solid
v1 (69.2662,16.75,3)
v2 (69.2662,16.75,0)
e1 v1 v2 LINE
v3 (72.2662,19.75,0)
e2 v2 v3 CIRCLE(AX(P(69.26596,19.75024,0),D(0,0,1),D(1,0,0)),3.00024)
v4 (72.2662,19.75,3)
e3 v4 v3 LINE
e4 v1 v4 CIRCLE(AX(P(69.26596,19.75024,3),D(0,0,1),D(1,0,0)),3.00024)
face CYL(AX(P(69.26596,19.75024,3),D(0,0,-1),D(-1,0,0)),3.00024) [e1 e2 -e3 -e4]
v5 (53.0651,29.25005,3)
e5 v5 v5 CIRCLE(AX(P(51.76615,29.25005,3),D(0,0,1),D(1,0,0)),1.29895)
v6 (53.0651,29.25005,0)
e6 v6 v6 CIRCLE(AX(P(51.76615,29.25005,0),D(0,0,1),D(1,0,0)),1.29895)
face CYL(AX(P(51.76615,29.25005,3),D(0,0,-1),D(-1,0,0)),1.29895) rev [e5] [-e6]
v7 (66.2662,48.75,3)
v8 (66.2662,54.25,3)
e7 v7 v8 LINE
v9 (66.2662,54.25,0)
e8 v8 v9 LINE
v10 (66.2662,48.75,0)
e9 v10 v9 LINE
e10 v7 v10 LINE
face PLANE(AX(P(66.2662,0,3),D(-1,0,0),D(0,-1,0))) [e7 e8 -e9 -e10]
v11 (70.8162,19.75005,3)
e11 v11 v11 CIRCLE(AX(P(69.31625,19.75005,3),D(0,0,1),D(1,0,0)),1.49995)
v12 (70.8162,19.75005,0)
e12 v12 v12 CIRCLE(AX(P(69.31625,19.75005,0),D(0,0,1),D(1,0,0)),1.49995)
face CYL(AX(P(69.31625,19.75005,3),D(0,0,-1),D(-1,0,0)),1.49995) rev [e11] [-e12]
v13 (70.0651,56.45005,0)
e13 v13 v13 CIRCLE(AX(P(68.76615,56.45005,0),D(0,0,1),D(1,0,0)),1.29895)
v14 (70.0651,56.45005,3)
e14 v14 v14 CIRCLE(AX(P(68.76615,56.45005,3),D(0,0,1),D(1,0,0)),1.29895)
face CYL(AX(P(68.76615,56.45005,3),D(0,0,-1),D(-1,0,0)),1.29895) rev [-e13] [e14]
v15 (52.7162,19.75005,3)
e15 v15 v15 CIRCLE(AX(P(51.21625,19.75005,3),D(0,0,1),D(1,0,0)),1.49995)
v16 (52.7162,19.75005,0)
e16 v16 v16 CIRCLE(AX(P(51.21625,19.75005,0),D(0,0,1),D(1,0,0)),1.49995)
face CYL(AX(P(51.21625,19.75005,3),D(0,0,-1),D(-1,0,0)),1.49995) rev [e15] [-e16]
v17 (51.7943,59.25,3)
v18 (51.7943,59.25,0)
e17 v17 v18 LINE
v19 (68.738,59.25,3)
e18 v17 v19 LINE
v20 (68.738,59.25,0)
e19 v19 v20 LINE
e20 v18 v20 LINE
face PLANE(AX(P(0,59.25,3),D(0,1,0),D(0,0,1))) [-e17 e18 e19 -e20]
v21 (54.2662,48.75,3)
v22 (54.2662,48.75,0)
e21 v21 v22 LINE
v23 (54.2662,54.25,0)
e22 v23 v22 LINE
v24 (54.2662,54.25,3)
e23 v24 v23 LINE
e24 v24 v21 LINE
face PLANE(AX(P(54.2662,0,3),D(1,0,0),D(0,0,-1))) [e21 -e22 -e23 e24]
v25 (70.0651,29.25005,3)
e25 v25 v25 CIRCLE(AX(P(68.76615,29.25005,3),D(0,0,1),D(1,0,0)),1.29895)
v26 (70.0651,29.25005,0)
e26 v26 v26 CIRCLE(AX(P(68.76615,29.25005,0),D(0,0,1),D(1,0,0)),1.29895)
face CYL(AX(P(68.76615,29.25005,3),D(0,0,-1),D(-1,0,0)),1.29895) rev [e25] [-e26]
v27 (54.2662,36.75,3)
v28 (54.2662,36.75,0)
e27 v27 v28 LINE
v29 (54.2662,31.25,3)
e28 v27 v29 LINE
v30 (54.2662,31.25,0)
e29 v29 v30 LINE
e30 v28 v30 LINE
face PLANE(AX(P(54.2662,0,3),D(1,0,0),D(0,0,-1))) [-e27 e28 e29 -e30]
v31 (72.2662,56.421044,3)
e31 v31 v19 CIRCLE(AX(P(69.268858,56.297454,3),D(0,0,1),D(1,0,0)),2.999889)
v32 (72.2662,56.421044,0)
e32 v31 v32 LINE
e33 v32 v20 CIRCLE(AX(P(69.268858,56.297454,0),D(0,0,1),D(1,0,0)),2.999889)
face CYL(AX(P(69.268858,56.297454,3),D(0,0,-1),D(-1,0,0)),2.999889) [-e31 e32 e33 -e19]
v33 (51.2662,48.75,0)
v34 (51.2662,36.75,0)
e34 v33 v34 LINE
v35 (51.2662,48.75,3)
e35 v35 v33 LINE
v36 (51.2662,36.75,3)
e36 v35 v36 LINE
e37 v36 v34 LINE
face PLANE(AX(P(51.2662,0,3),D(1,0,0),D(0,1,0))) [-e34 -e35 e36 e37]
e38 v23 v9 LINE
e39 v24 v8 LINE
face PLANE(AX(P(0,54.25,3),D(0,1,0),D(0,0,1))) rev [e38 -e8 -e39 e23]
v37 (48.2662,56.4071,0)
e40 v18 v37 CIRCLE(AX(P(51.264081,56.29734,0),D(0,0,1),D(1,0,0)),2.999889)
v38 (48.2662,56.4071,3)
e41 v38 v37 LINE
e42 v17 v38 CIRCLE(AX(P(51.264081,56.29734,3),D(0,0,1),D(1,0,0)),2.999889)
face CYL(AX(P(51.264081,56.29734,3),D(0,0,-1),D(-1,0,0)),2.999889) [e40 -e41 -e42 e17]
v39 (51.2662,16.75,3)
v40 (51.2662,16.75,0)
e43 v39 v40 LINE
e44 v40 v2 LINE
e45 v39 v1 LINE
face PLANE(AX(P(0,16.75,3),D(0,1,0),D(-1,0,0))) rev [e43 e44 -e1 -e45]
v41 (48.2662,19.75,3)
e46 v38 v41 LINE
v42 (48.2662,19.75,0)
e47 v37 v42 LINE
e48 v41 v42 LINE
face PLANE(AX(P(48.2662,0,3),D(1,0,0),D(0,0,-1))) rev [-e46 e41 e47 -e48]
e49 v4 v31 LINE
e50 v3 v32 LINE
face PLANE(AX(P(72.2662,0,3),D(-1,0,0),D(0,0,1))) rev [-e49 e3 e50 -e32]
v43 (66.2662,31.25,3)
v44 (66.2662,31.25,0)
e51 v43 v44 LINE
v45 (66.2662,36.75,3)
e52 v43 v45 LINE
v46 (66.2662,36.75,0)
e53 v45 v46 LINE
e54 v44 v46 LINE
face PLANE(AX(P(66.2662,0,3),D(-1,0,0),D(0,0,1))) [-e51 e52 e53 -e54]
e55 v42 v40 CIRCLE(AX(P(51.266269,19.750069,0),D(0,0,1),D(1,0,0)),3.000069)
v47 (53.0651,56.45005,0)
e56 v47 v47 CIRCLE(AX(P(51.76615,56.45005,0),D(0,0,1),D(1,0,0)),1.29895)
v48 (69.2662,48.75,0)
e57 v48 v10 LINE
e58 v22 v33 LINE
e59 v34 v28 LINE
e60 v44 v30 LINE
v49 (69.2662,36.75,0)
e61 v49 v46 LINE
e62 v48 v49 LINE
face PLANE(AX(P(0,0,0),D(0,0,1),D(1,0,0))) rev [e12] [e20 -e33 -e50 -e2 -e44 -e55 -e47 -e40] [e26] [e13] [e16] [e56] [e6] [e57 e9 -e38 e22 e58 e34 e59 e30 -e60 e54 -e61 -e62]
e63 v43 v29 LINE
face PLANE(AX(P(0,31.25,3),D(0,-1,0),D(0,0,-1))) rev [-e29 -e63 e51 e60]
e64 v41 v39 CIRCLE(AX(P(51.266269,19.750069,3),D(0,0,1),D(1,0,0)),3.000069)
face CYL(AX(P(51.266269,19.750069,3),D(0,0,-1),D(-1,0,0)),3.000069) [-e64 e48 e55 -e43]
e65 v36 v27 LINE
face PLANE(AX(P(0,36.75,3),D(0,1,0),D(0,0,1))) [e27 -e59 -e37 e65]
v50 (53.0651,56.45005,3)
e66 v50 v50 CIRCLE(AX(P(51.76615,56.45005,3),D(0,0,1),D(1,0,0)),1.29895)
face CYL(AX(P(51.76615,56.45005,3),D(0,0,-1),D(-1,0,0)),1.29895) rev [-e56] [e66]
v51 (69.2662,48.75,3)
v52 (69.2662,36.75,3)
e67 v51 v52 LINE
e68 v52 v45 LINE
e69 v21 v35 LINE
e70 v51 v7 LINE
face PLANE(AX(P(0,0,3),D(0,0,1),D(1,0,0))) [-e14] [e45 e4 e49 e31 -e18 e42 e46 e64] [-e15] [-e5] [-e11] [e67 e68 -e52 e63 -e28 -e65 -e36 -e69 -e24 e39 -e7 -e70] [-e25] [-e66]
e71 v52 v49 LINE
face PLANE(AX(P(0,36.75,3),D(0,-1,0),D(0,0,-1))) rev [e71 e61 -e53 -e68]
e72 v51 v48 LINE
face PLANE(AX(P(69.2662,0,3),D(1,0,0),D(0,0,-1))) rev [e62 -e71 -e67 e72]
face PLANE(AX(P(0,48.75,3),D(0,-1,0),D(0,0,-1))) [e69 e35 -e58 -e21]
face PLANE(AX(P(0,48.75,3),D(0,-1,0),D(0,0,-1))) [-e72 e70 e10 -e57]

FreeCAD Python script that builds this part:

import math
import FreeCAD as App
import Part
import Sketcher

V = App.Vector
Q = App.Units.Quantity

doc = App.newDocument("Part")
body = doc.addObject("PartDesign::Body", "Body")

# Sketch on XY plane
sketch1 = body.newObject("Sketcher::SketchObject", "Sketch")
sketch1.AttachmentSupport = (doc.getObject("XY_Plane"), [""])
sketch1.MapMode = "FlatFace"
sketch1.addGeometry([
    Part.ArcOfCircle(Part.Circle(V(69.268858, 56.297454, 0), V(0, 0, 1), 2.999889), math.radians(2.361139), math.radians(100.192684)),  # 0
    Part.LineSegment(V(68.738, 59.25, 0), V(51.7943, 59.25, 0)),  # 1
    Part.ArcOfCircle(Part.Circle(V(51.264081, 56.29734, 0), V(0, 0, 1), 2.999889), math.radians(79.819702), math.radians(177.903186)),  # 2
    Part.LineSegment(V(48.2662, 56.4071, 0), V(48.2662, 19.75, 0)),  # 3
    Part.ArcOfCircle(Part.Circle(V(51.266269, 19.750069, 0), V(0, 0, 1), 3.000069), math.radians(-179.998674), math.radians(-90.001326)),  # 4
    Part.LineSegment(V(51.2662, 16.75, 0), V(69.2662, 16.75, 0)),  # 5
    Part.ArcOfCircle(Part.Circle(V(69.26596, 19.75024, 0), V(0, 0, 1), 3.00024), math.radians(-89.995413), math.radians(-0.004587)),  # 6
    Part.LineSegment(V(72.2662, 19.75, 0), V(72.2662, 56.421044, 0)),  # 7
    Part.Circle(V(51.21625, 19.75005, 0), V(0, 0, 1), 1.49995),  # 8
    Part.Circle(V(51.76615, 29.25005, 0), V(0, 0, 1), 1.29895),  # 9
    Part.Circle(V(69.31625, 19.75005, 0), V(0, 0, 1), 1.49995),  # 10
    Part.Circle(V(68.76615, 29.25005, 0), V(0, 0, 1), 1.29895),  # 11
    Part.LineSegment(V(66.2662, 48.75, 0), V(69.2662, 48.75, 0)),  # 12
    Part.LineSegment(V(69.2662, 48.75, 0), V(69.2662, 36.75, 0)),  # 13
    Part.LineSegment(V(69.2662, 36.75, 0), V(66.2662, 36.75, 0)),  # 14
    Part.LineSegment(V(66.2662, 36.75, 0), V(66.2662, 31.25, 0)),  # 15
    Part.LineSegment(V(66.2662, 31.25, 0), V(54.2662, 31.25, 0)),  # 16
    Part.LineSegment(V(54.2662, 31.25, 0), V(54.2662, 36.75, 0)),  # 17
    Part.LineSegment(V(54.2662, 36.75, 0), V(51.2662, 36.75, 0)),  # 18
    Part.LineSegment(V(51.2662, 36.75, 0), V(51.2662, 48.75, 0)),  # 19
    Part.LineSegment(V(51.2662, 48.75, 0), V(54.2662, 48.75, 0)),  # 20
    Part.LineSegment(V(54.2662, 48.75, 0), V(54.2662, 54.25, 0)),  # 21
    Part.LineSegment(V(54.2662, 54.25, 0), V(66.2662, 54.25, 0)),  # 22
    Part.LineSegment(V(66.2662, 54.25, 0), V(66.2662, 48.75, 0)),  # 23
    Part.Circle(V(51.76615, 56.45005, 0), V(0, 0, 1), 1.29895),  # 24
    Part.Circle(V(68.76615, 56.45005, 0), V(0, 0, 1), 1.29895),  # 25
], False)
sketch1.addConstraint([
    Sketcher.Constraint("Coincident", 0, 2, 1, 1),
    Sketcher.Constraint("Coincident", 1, 2, 2, 1),
    Sketcher.Constraint("Coincident", 2, 2, 3, 1),
    Sketcher.Constraint("Coincident", 3, 2, 4, 1),
    Sketcher.Constraint("Coincident", 4, 2, 5, 1),
    Sketcher.Constraint("Coincident", 5, 2, 6, 1),
    Sketcher.Constraint("Coincident", 6, 2, 7, 1),
    Sketcher.Constraint("Coincident", 7, 2, 0, 1),
    Sketcher.Constraint("Coincident", 12, 2, 13, 1),
    Sketcher.Constraint("Coincident", 13, 2, 14, 1),
    Sketcher.Constraint("Coincident", 14, 2, 15, 1),
    Sketcher.Constraint("Coincident", 15, 2, 16, 1),
    Sketcher.Constraint("Coincident", 16, 2, 17, 1),
    Sketcher.Constraint("Coincident", 17, 2, 18, 1),
    Sketcher.Constraint("Coincident", 18, 2, 19, 1),
    Sketcher.Constraint("Coincident", 19, 2, 20, 1),
    Sketcher.Constraint("Coincident", 20, 2, 21, 1),
    Sketcher.Constraint("Coincident", 21, 2, 22, 1),
    Sketcher.Constraint("Coincident", 22, 2, 23, 1),
    Sketcher.Constraint("Coincident", 23, 2, 12, 1),
    Sketcher.Constraint("Horizontal", 1),
    Sketcher.Constraint("Vertical", 3),
    Sketcher.Constraint("Horizontal", 5),
    Sketcher.Constraint("Vertical", 7),
    Sketcher.Constraint("Horizontal", 12),
    Sketcher.Constraint("Vertical", 13),
    Sketcher.Constraint("Horizontal", 14),
    Sketcher.Constraint("Vertical", 15),
    Sketcher.Constraint("Horizontal", 16),
    Sketcher.Constraint("Vertical", 17),
    Sketcher.Constraint("Horizontal", 18),
    Sketcher.Constraint("Vertical", 19),
    Sketcher.Constraint("Horizontal", 20),
    Sketcher.Constraint("Vertical", 21),
    Sketcher.Constraint("Horizontal", 22),
    Sketcher.Constraint("Vertical", 23),
    Sketcher.Constraint("Equal", 0, 2),
    Sketcher.Constraint("Equal", 8, 10),
    Sketcher.Constraint("Equal", 9, 11),
    Sketcher.Constraint("Equal", 11, 24),
    Sketcher.Constraint("Equal", 24, 25),
    Sketcher.Constraint("Horizontal", 8, 3, 10, 3),
    Sketcher.Constraint("Horizontal", 9, 3, 11, 3),
    Sketcher.Constraint("Horizontal", 24, 3, 25, 3),
    Sketcher.Constraint("Horizontal", 3, 2, 6, 2),
    Sketcher.Constraint("Horizontal", 14, 2, 17, 2),
    Sketcher.Constraint("Horizontal", 12, 2, 19, 2),
    Sketcher.Constraint("Vertical", 9, 3, 24, 3),
    Sketcher.Constraint("Vertical", 11, 3, 25, 3),
    Sketcher.Constraint("Vertical", 5, 2, 12, 2),
    Sketcher.Constraint("Vertical", 4, 2, 18, 2),
    Sketcher.Constraint("Vertical", 17, 2, 20, 2),
    Sketcher.Constraint("Vertical", 15, 2, 22, 2),
    Sketcher.Constraint("Equal", 14, 18),
    Sketcher.Constraint("Equal", 22, 13),
    Sketcher.Constraint("Equal", 17, 21),
    Sketcher.Constraint("DistanceX", 5, 1, 5, 2, Q("18 mm")),
    Sketcher.Constraint("DistanceX", 12, 1, 12, 2, Q("3 mm")),
    Sketcher.Constraint("DistanceY", 15, 2, 15, 1, Q("5.5 mm")),
    Sketcher.Constraint("DistanceX", 9, 3, 11, 3, Q("17 mm")),
    Sketcher.Constraint("DistanceX", 3, 2, 4, 2, Q("3 mm")),
    Sketcher.Constraint("DistanceY", 4, 2, 3, 2, Q("3 mm")),
    Sketcher.Constraint("DistanceX", 5, 2, 6, 2, Q("3 mm")),
    Sketcher.Constraint("DistanceY", 6, 2, 13, 2, Q("17 mm")),
    Sketcher.Constraint("DistanceY", 21, 2, 1, 2, Q("5 mm")),
    Sketcher.Constraint("Diameter", 8, Q("2.9999 mm")),
    Sketcher.Constraint("Diameter", 9, Q("2.5979 mm")),
    Sketcher.Constraint("DistanceY", 8, 3, 9, 3, Q("9.5 mm")),
    Sketcher.Constraint("DistanceX", 8, 3, 10, 3, Q("18.1 mm")),
    Sketcher.Constraint("DistanceY", 9, 3, 24, 3, Q("27.2 mm")),
    Sketcher.Constraint("DistanceY", -1, 1, 0, 2, Q("59.25 mm")),
    Sketcher.Constraint("Radius", 0, Q("2.999889 mm")),
    Sketcher.Constraint("Radius", 4, Q("3.000069 mm")),
    Sketcher.Constraint("Radius", 6, Q("3.00024 mm")),
    Sketcher.Constraint("DistanceX", 1, 2, 1, 1, Q("16.9437 mm")),
    Sketcher.Constraint("DistanceY", 3, 2, 3, 1, Q("36.6571 mm")),
    Sketcher.Constraint("DistanceX", -1, 1, 0, 2, Q("68.738 mm")),
    Sketcher.Constraint("DistanceX", -1, 1, 2, 2, Q("48.2662 mm")),
    Sketcher.Constraint("DistanceX", 8, 3, 9, 3, Q("0.5499 mm")),
    Sketcher.Constraint("DistanceY", 7, 1, 7, 2, Q("36.671044 mm")),
    Sketcher.Constraint("DistanceX", -1, 1, 8, 3, Q("51.21625 mm")),
    Sketcher.Constraint("DistanceY", -1, 1, 8, 3, Q("19.75005 mm")),
])
pad1 = body.newObject("PartDesign::Pad", "Pad")
pad1.Profile = sketch1
pad1.Length = 3

doc.recompute()
